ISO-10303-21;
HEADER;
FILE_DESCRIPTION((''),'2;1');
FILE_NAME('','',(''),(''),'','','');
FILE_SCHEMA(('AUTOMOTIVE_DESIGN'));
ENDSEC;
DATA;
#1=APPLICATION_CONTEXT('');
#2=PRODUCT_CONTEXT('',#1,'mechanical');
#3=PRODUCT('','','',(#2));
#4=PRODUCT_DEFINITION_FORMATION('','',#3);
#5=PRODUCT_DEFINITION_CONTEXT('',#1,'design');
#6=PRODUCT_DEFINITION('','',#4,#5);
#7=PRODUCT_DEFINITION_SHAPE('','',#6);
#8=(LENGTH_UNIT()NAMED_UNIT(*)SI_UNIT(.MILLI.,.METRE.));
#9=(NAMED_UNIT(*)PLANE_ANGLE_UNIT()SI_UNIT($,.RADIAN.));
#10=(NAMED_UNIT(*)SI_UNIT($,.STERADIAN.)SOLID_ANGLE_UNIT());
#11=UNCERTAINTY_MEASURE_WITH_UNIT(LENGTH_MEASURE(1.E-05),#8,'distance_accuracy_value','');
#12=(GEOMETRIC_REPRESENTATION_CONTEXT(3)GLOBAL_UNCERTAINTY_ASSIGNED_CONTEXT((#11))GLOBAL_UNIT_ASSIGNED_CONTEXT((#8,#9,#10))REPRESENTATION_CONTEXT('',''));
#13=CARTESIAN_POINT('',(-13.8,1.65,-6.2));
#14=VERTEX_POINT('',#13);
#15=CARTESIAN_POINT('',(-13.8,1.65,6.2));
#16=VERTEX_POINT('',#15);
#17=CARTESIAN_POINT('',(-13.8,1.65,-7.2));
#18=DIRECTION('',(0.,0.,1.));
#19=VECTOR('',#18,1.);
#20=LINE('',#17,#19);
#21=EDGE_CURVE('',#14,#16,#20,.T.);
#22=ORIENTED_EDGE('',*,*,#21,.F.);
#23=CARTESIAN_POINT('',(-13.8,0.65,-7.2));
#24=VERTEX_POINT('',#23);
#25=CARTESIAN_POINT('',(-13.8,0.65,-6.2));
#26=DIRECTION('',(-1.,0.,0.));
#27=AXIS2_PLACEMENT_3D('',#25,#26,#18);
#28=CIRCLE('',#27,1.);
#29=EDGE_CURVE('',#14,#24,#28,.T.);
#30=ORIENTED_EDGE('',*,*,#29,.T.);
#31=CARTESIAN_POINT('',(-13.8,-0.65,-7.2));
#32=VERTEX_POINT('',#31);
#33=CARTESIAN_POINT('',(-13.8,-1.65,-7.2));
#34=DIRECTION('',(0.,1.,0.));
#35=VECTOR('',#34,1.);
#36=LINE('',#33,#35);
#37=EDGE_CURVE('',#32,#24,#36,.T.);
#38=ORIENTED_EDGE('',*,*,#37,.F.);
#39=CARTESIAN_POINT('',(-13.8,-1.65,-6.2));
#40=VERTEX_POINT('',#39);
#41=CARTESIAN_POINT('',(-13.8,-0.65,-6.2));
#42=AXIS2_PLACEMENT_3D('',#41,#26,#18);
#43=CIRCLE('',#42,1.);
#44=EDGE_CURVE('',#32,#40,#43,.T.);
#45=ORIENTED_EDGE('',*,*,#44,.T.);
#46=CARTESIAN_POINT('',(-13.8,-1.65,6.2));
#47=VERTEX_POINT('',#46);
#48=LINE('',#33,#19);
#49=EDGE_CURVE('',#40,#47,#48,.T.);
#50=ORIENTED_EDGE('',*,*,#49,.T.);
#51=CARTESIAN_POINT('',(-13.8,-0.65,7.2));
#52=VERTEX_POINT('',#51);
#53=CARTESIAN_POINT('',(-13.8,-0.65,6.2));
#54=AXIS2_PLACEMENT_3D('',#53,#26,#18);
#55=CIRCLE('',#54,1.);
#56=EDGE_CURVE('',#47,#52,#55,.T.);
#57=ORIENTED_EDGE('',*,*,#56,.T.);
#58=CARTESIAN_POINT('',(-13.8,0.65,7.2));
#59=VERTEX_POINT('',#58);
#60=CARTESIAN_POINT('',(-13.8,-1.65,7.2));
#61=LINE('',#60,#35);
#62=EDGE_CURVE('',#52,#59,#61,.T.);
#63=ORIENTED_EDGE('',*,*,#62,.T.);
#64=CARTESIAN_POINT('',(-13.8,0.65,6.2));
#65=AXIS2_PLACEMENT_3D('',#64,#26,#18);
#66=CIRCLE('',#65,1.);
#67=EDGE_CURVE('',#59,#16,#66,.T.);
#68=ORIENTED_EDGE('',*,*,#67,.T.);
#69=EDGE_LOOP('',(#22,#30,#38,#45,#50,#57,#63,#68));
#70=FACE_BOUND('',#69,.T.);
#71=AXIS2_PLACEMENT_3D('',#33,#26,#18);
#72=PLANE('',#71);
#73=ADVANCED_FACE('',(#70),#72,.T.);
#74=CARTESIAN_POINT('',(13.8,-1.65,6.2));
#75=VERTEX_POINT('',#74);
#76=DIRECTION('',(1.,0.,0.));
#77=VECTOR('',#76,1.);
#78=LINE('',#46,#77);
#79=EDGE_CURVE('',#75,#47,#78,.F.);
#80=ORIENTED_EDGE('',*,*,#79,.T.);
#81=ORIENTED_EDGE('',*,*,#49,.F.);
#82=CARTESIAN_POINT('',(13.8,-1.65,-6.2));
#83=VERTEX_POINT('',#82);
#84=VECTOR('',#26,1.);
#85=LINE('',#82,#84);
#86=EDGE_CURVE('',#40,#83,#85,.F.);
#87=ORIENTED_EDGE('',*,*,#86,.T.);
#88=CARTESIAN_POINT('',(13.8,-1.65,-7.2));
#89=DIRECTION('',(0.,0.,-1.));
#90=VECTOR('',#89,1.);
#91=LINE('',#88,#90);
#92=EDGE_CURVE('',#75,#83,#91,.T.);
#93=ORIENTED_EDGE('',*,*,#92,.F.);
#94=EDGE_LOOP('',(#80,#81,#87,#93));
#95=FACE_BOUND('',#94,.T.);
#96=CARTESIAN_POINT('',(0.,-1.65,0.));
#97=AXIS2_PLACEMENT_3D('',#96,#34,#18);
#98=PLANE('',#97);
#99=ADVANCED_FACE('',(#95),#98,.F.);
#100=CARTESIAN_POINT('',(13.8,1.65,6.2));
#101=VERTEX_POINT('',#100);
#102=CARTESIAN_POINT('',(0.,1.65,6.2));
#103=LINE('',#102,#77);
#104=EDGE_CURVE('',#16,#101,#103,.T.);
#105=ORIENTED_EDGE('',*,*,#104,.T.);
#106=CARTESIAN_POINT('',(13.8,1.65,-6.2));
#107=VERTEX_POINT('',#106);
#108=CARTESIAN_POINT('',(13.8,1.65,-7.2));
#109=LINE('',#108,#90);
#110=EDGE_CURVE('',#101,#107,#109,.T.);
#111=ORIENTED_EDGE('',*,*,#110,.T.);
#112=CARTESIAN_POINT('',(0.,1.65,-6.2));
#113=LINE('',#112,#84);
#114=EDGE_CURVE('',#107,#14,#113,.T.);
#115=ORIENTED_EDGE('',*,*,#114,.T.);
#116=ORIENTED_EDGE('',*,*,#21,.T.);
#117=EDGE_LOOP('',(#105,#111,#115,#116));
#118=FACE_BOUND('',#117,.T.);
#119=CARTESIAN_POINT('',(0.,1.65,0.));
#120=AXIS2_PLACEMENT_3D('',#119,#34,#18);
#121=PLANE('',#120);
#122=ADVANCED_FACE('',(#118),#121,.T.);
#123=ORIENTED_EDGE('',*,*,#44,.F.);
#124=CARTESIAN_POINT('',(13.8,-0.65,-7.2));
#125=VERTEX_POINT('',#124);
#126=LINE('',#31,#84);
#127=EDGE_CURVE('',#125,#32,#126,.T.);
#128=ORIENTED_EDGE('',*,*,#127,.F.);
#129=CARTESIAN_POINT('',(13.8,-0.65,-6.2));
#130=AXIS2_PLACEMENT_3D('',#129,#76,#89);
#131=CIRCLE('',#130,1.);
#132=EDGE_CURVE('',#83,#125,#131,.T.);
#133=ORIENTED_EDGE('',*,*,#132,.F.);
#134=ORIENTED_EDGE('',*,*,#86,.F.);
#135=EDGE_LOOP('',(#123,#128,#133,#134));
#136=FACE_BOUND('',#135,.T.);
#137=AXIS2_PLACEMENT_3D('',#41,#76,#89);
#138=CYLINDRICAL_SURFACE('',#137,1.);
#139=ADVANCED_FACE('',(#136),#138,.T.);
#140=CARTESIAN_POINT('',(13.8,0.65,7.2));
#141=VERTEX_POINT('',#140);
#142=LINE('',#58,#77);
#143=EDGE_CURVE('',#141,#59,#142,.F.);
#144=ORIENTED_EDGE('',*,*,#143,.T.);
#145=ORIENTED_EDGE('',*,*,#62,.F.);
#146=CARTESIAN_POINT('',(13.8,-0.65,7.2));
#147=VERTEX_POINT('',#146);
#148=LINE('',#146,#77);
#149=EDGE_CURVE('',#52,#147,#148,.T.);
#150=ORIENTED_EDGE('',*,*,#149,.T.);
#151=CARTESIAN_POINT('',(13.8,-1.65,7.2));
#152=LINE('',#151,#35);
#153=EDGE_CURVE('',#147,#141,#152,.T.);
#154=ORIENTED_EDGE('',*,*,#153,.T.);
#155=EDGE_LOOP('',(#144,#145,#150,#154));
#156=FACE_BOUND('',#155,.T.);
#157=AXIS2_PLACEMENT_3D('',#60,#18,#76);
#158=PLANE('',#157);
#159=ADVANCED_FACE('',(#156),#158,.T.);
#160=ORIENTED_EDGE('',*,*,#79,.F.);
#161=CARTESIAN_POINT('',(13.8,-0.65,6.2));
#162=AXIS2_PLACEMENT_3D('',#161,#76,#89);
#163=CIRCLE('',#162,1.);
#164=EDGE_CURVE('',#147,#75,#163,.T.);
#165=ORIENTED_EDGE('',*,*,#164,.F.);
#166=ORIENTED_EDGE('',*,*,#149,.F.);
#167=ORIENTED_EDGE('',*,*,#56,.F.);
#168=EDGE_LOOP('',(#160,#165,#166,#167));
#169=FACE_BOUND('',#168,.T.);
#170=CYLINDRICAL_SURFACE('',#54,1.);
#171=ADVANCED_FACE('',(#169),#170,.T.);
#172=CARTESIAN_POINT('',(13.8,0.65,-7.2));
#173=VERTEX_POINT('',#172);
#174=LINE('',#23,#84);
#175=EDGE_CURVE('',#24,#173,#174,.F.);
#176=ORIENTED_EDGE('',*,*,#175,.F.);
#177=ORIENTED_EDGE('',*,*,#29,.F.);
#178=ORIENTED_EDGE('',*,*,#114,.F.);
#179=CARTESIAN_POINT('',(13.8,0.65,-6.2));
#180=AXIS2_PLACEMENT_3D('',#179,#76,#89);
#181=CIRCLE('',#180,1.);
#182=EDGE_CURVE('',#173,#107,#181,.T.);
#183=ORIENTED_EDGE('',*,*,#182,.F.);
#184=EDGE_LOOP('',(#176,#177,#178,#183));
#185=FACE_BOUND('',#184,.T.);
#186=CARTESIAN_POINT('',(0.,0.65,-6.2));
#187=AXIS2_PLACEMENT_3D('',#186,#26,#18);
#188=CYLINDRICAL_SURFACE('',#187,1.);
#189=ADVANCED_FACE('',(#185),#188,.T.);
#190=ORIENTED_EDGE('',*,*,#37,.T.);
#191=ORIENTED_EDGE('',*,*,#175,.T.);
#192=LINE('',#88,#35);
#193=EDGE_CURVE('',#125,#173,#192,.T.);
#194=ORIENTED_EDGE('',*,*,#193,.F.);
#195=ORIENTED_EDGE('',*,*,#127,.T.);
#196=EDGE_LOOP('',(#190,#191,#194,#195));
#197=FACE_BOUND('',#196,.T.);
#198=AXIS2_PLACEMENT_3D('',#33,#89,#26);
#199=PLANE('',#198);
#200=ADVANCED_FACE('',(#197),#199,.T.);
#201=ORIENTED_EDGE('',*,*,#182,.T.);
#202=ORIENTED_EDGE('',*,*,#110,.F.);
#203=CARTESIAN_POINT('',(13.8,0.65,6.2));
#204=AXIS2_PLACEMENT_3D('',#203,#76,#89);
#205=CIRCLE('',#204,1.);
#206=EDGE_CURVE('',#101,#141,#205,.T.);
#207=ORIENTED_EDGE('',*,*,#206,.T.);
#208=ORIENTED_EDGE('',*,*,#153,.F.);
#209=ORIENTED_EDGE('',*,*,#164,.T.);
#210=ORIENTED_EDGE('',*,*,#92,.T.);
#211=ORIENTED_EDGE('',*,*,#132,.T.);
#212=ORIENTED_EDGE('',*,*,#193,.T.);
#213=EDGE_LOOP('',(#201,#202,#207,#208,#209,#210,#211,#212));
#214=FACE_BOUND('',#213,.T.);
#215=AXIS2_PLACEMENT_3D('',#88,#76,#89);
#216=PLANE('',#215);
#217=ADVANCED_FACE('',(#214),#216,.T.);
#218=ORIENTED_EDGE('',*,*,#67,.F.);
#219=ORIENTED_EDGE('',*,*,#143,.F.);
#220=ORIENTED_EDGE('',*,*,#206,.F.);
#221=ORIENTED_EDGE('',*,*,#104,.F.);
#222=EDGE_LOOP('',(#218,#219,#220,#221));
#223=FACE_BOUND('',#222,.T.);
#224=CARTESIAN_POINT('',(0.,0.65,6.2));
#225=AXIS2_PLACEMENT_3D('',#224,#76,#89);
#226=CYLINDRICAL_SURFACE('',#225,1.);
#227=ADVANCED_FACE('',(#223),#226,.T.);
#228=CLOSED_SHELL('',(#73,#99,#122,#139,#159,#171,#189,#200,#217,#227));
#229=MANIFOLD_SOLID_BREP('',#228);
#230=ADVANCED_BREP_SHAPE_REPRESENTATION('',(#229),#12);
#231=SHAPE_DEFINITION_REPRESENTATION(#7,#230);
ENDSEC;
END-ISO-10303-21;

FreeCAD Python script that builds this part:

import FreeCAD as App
import Part
import Sketcher
from FreeCAD import Vector
Q = App.Units.Quantity


def edges_at(feature, points):
    """Names of the edges that pass closest to the given points."""
    edges = feature.Shape.Edges
    near = lambda p: min(range(len(edges)), key=lambda i: edges[i].distToShape(Part.Vertex(*p))[0])
    return sorted({f"Edge{near(p) + 1}" for p in points})


def add_polygon(sketch, points):
    """Adds a closed chain of lines whose ends are joined by coincident constraints."""
    first, n = sketch.GeometryCount, len(points)
    for a, b in zip(points, points[1:] + points[:1]):
        sketch.addGeometry(Part.LineSegment(App.Vector(*a, 0), App.Vector(*b, 0)), False)
    for i in range(n):
        sketch.addConstraint(Sketcher.Constraint("Coincident", first + i, 2, first + (i + 1) % n, 1))

doc = App.newDocument("Part")
params = doc.addObject("Spreadsheet::Sheet", "Params")
for row, (alias, value) in enumerate([
    ("sketch1_width", "27.6 mm"),
    ("sketch1_height", "14.4 mm"),
    ("pad1_length", "1.65 mm"),
    ("pad1_length2", "1.65 mm"),
    ("fillet_radius", "1 mm"),
], start=1):
    params.set(f"A{row}", alias)
    params.set(f"B{row}", "=" + value)
    params.setAlias(f"B{row}", alias)

body = doc.addObject("PartDesign::Body", "Body")

# Sketch on XZ plane
sketch1 = doc.addObject("Sketcher::SketchObject", "Sketch")
body.addObject(sketch1)
sketch1.AttachmentSupport = (doc.XZ_Plane, [""])
sketch1.MapMode = "FlatFace"
add_polygon(sketch1, [(-13.8, -7.2), (-13.8, 7.2), (13.8, 7.2), (13.8, -7.2)])  # lines 0-3
sketch1.addConstraint([
    Sketcher.Constraint("Vertical", 0),
    Sketcher.Constraint("Horizontal", 1),
    Sketcher.Constraint("Vertical", 2),
    Sketcher.Constraint("Horizontal", 3),
    Sketcher.Constraint("Symmetric", 0, 2, 2, 2, -1, 1),
    Sketcher.Constraint("DistanceX", 1, 1, 1, 2, Q("27.6 mm")),
    Sketcher.Constraint("DistanceY", 0, 1, 0, 2, Q("14.4 mm")),
])
sketch1.setExpression("Constraints[9]", "Params.sketch1_width")
sketch1.setExpression("Constraints[10]", "Params.sketch1_height")
pad1 = doc.addObject("PartDesign::Pad", "Pad")
body.addObject(pad1)
pad1.Profile = sketch1
pad1.Type = "TwoLengths"
pad1.setExpression("Length", "Params.pad1_length")
pad1.setExpression("Length2", "Params.pad1_length2")
pad1.Reversed = True
doc.recompute()

fillet = doc.addObject("PartDesign::Fillet", "Fillet")
body.addObject(fillet)
fillet.Base = (pad1, edges_at(pad1, [
    (0, 1.65, -7.2),
    (0, -1.65, 7.2),
    (0, 1.65, 7.2),
    (0, -1.65, -7.2),
]))
fillet.setExpression("Radius", "Params.fillet_radius")

doc.recompute()
